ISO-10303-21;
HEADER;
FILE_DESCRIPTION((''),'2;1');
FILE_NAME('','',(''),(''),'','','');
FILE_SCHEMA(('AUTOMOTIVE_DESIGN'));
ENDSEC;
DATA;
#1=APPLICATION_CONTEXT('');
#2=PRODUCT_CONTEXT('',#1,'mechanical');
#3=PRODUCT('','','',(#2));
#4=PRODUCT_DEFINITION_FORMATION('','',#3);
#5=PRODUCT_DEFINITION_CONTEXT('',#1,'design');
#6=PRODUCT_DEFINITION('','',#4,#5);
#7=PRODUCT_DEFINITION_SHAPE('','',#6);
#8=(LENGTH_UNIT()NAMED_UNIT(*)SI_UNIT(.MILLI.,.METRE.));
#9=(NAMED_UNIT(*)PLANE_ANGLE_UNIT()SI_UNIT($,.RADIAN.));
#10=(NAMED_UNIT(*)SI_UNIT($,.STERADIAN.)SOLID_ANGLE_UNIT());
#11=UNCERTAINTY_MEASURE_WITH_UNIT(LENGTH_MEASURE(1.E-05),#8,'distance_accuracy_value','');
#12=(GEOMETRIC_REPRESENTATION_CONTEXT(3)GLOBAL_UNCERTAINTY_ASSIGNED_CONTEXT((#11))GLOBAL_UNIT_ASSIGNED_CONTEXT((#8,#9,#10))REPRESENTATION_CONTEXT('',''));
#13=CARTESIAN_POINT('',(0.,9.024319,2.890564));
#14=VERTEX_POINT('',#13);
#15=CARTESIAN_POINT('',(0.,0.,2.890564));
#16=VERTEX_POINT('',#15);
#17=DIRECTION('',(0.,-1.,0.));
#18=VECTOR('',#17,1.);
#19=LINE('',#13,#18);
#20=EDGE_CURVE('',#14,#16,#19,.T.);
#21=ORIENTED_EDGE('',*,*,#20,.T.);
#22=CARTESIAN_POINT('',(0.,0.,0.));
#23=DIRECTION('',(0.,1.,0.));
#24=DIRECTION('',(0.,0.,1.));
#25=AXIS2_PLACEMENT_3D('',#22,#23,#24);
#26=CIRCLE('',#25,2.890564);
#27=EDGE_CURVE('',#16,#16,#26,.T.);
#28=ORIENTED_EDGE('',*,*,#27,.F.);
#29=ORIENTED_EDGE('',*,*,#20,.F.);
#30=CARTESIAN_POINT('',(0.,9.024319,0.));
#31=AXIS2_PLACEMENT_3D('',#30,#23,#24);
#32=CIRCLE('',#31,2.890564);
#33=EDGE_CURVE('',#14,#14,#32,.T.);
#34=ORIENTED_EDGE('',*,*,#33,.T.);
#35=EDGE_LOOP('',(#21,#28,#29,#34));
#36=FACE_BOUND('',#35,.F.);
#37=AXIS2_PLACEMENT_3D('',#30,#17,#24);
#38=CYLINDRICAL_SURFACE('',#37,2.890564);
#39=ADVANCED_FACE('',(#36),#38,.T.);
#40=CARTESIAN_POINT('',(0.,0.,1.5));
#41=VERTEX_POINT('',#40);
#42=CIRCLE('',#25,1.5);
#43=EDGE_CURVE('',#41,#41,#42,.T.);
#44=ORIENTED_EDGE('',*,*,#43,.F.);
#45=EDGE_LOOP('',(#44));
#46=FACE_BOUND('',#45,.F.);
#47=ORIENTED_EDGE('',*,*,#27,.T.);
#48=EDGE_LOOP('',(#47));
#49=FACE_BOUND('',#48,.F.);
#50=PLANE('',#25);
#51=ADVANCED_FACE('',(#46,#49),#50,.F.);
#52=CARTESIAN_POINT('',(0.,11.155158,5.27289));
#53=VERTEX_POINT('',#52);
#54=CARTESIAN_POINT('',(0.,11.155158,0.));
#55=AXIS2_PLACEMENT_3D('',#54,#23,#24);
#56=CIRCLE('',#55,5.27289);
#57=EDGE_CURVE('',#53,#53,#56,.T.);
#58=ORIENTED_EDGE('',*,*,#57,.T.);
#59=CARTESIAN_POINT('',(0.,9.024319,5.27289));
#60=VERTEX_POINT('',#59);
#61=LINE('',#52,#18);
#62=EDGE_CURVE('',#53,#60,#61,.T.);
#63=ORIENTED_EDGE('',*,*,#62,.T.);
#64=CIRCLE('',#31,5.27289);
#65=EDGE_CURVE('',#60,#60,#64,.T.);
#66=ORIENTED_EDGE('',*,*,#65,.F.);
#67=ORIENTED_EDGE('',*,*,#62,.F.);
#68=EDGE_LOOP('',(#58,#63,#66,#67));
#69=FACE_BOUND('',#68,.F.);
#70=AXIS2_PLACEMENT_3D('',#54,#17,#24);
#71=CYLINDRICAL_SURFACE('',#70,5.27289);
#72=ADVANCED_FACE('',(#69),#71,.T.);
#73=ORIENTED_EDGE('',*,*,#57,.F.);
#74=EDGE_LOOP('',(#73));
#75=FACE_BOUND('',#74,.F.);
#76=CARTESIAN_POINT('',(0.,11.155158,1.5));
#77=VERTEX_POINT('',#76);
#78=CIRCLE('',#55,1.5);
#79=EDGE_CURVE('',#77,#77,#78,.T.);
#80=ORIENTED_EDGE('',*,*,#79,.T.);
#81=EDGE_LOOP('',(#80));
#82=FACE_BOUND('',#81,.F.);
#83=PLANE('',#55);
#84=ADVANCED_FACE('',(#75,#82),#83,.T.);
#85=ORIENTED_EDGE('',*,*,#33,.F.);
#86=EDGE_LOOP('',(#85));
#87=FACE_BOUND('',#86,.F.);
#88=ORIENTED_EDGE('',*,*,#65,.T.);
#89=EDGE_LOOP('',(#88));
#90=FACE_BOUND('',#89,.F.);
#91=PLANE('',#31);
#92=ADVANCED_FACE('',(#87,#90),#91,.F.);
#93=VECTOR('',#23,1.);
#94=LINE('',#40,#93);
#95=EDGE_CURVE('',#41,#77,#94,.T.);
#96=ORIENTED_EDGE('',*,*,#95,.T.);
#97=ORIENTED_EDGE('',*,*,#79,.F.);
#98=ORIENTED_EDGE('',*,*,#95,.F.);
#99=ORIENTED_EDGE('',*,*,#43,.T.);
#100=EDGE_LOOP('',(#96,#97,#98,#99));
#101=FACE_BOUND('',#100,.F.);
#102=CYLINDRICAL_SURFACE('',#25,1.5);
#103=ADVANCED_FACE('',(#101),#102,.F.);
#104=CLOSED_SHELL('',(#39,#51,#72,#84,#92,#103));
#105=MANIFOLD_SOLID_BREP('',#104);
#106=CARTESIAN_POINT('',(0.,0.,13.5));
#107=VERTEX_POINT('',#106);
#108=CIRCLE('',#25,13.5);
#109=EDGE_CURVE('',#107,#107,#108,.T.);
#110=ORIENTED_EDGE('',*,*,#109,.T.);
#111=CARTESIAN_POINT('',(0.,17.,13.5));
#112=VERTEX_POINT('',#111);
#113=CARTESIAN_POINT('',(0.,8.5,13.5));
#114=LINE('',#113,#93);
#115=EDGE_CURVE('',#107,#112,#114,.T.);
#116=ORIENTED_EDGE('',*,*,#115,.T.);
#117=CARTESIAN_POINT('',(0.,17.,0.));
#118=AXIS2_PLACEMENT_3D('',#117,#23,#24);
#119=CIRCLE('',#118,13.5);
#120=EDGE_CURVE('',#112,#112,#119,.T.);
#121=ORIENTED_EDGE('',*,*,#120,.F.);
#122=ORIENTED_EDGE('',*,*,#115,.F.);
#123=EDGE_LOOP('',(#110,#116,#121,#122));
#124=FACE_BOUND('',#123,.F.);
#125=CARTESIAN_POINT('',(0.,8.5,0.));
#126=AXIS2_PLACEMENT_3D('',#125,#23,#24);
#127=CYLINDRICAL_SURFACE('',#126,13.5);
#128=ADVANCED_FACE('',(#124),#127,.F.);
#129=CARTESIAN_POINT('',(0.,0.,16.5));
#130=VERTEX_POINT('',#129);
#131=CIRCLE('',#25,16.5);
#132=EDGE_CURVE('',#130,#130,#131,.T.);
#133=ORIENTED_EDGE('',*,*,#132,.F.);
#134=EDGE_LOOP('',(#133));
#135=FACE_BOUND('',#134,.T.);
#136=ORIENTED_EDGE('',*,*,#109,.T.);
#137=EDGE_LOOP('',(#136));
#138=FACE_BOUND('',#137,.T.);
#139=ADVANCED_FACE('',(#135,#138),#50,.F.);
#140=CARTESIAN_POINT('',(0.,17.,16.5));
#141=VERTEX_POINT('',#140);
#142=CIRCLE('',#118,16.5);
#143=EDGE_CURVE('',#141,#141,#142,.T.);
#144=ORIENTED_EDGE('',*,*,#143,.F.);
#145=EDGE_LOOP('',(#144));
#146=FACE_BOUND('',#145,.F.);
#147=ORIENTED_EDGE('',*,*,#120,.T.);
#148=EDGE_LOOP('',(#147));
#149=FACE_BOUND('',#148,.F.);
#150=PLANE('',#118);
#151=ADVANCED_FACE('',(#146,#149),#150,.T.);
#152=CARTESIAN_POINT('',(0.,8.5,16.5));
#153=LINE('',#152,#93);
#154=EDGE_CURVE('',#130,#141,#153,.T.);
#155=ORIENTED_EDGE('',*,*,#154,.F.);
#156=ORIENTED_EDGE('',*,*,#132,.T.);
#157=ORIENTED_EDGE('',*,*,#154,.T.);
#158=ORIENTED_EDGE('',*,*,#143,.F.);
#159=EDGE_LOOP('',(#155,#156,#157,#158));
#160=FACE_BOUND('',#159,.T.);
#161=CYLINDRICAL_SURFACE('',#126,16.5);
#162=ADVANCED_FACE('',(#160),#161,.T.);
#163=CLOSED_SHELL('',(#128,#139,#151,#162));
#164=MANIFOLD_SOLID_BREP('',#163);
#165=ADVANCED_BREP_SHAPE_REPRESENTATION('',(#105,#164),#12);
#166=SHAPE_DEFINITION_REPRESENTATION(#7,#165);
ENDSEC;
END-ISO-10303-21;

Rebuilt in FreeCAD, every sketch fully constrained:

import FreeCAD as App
import Part
import Sketcher
from FreeCAD import Vector

doc = App.newDocument("Part")
body = doc.addObject("PartDesign::Body", "Body")
body.AllowCompound = True

# Sketch on YZ plane
sketch1 = body.newObject("Sketcher::SketchObject", "Sketch")
sketch1.AttachmentSupport = (doc.getObject("YZ_Plane"), [""])
sketch1.MapMode = "FlatFace"
sketch1.addGeometry(Part.LineSegment(Vector(0, 16.5, 0), Vector(0, 13.5, 0)), False)
sketch1.addGeometry(Part.LineSegment(Vector(0, 13.5, 0), Vector(17, 13.5, 0)), False)
sketch1.addGeometry(Part.LineSegment(Vector(17, 13.5, 0), Vector(17, 16.5, 0)), False)
sketch1.addGeometry(Part.LineSegment(Vector(17, 16.5, 0), Vector(0, 16.5, 0)), False)
sketch1.addGeometry(Part.LineSegment(Vector(0, 2.9, 0), Vector(0, 1.5, 0)), False)
sketch1.addGeometry(Part.LineSegment(Vector(0, 1.5, 0), Vector(11.2, 1.5, 0)), False)
sketch1.addGeometry(Part.LineSegment(Vector(11.2, 1.5, 0), Vector(11.2, 5.3, 0)), False)
sketch1.addGeometry(Part.LineSegment(Vector(11.2, 5.3, 0), Vector(9, 5.3, 0)), False)
sketch1.addGeometry(Part.LineSegment(Vector(9, 5.3, 0), Vector(9, 2.9, 0)), False)
sketch1.addGeometry(Part.LineSegment(Vector(9, 2.9, 0), Vector(0, 2.9, 0)), False)
sketch1.addConstraint(Sketcher.Constraint("Coincident", 0, 2, 1, 1))
sketch1.addConstraint(Sketcher.Constraint("Coincident", 1, 2, 2, 1))
sketch1.addConstraint(Sketcher.Constraint("Coincident", 2, 2, 3, 1))
sketch1.addConstraint(Sketcher.Constraint("Coincident", 3, 2, 0, 1))
sketch1.addConstraint(Sketcher.Constraint("Coincident", 4, 2, 5, 1))
sketch1.addConstraint(Sketcher.Constraint("Coincident", 5, 2, 6, 1))
sketch1.addConstraint(Sketcher.Constraint("Coincident", 6, 2, 7, 1))
sketch1.addConstraint(Sketcher.Constraint("Coincident", 7, 2, 8, 1))
sketch1.addConstraint(Sketcher.Constraint("Coincident", 8, 2, 9, 1))
sketch1.addConstraint(Sketcher.Constraint("Coincident", 9, 2, 4, 1))
sketch1.addConstraint(Sketcher.Constraint("Vertical", 0))
sketch1.addConstraint(Sketcher.Constraint("Horizontal", 1))
sketch1.addConstraint(Sketcher.Constraint("Vertical", 2))
sketch1.addConstraint(Sketcher.Constraint("Horizontal", 3))
sketch1.addConstraint(Sketcher.Constraint("Vertical", 4))
sketch1.addConstraint(Sketcher.Constraint("Horizontal", 5))
sketch1.addConstraint(Sketcher.Constraint("Vertical", 6))
sketch1.addConstraint(Sketcher.Constraint("Horizontal", 7))
sketch1.addConstraint(Sketcher.Constraint("Vertical", 8))
sketch1.addConstraint(Sketcher.Constraint("Horizontal", 9))
sketch1.addConstraint(Sketcher.Constraint("PointOnObject", 0, 2, -2))
sketch1.addConstraint(Sketcher.Constraint("PointOnObject", 4, 2, -2))
sketch1.addConstraint(Sketcher.Constraint("DistanceX", 1, 1, 1, 2, 17.0))
sketch1.addConstraint(Sketcher.Constraint("DistanceY", 0, 2, 0, 1, 3.0))
sketch1.addConstraint(Sketcher.Constraint("DistanceY", 4, 2, 0, 2, 12.0))
sketch1.addConstraint(Sketcher.Constraint("DistanceY", -1, 1, 0, 2, 13.5))
sketch1.addConstraint(Sketcher.Constraint("DistanceX", 7, 2, 7, 1, 2.130839))
sketch1.addConstraint(Sketcher.Constraint("DistanceX", 9, 2, 9, 1, 9.024319))
sketch1.addConstraint(Sketcher.Constraint("DistanceY", 6, 1, 6, 2, 3.77289))
sketch1.addConstraint(Sketcher.Constraint("DistanceY", 4, 2, 4, 1, 1.390564))
revolution = body.newObject("PartDesign::Revolution", "Revolution")
revolution.Profile = sketch1
revolution.ReferenceAxis = (sketch1, ["H_Axis"])
revolution.Angle = 360

doc.recompute()
